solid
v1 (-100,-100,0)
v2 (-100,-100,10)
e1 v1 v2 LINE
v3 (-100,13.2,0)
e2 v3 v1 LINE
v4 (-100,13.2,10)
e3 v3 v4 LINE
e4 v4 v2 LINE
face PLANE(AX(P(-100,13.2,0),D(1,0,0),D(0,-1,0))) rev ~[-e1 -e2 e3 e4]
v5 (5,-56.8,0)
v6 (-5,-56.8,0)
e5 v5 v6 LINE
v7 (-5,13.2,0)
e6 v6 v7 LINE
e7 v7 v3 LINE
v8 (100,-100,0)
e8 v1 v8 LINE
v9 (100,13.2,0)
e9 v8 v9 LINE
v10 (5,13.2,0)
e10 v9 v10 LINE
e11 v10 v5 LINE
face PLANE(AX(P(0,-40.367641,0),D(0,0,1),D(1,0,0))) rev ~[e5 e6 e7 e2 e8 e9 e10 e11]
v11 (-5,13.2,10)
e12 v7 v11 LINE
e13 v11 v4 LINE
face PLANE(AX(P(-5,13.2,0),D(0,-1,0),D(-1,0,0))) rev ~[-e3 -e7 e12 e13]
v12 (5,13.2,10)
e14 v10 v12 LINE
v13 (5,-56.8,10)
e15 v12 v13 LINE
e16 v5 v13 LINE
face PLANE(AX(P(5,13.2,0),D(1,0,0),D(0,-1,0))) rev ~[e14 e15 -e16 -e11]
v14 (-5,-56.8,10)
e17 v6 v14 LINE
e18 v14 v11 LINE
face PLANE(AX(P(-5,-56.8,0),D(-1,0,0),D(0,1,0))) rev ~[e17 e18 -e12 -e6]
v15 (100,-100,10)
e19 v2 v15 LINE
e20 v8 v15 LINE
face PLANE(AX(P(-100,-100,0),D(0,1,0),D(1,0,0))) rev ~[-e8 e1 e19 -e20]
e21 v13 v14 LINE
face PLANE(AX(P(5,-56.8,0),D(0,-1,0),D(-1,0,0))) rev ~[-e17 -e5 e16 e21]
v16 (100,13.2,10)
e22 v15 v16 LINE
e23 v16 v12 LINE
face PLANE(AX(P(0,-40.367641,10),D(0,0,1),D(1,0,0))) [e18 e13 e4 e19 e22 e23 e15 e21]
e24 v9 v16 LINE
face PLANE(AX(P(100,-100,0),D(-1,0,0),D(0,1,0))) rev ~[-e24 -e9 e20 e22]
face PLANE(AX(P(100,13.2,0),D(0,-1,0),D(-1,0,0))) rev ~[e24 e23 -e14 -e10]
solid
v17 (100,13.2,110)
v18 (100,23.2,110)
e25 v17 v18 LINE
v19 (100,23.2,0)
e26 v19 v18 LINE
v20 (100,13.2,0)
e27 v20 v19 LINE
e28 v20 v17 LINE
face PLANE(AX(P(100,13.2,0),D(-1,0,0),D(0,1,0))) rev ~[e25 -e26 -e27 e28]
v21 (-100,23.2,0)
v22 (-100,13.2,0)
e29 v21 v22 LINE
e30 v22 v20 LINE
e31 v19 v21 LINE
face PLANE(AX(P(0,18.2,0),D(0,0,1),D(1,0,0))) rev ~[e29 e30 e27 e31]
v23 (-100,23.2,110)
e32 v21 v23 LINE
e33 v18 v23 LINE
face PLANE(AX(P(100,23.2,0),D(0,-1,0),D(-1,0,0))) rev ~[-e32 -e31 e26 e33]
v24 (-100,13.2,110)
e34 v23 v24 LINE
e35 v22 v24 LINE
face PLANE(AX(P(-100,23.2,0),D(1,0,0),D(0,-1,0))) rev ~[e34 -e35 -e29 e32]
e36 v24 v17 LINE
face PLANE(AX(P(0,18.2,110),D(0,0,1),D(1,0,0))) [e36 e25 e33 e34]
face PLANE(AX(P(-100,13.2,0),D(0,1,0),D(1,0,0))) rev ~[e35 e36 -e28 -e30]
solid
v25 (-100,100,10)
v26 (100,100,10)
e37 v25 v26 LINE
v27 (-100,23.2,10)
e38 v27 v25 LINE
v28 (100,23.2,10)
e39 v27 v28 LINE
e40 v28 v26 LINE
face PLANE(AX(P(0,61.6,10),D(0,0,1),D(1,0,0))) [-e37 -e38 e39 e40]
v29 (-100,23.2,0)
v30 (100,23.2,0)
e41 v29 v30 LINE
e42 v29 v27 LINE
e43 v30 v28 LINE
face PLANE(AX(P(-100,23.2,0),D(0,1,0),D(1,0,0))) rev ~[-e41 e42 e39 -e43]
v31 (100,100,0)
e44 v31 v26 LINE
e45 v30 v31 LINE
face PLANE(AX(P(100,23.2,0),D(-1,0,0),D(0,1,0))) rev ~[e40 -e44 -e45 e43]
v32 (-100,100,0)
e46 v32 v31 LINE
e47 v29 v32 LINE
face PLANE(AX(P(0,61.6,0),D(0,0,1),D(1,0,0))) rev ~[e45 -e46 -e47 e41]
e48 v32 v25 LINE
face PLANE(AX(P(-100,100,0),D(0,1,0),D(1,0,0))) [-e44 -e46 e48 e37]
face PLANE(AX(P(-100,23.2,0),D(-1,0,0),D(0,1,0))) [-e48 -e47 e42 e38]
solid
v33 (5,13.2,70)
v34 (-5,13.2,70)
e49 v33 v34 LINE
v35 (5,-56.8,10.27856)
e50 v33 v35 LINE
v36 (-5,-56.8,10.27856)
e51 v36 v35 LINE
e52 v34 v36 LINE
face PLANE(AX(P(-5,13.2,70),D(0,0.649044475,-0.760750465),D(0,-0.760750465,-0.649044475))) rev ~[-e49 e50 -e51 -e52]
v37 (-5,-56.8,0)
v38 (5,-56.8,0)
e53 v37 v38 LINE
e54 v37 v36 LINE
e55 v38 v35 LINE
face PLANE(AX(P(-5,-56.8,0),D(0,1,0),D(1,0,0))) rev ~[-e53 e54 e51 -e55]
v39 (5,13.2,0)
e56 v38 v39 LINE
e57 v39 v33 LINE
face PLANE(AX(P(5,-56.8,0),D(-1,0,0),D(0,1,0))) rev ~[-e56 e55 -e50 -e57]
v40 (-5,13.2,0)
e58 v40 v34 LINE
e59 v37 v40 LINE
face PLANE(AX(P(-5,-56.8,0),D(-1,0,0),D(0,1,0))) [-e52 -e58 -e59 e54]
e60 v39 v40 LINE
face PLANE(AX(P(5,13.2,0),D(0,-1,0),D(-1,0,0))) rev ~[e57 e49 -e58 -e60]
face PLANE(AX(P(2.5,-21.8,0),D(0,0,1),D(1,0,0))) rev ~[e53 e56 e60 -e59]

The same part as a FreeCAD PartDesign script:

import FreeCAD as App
import Part
import Sketcher
Q = App.Units.Quantity


def add_polygon(sketch, points):
    """Adds a closed chain of lines whose ends are joined by coincident constraints."""
    first, n = sketch.GeometryCount, len(points)
    for a, b in zip(points, points[1:] + points[:1]):
        sketch.addGeometry(Part.LineSegment(App.Vector(*a, 0), App.Vector(*b, 0)), False)
    for i in range(n):
        sketch.addConstraint(Sketcher.Constraint("Coincident", first + i, 2, first + (i + 1) % n, 1))

doc = App.newDocument("Part")
body = doc.addObject("PartDesign::Body", "Body")
body.AllowCompound = True

# Sketch on XY plane
sketch1 = doc.addObject("Sketcher::SketchObject", "Sketch")
body.addObject(sketch1)
sketch1.AttachmentSupport = (doc.XY_Plane, [""])
sketch1.MapMode = "FlatFace"
add_polygon(sketch1, [(-100, 100), (-100, 23), (100, 23), (100, 100)])  # lines 0-3
add_polygon(sketch1, [(-100, 13), (-100, -100), (100, -100), (100, 13), (5, 13), (5, -57), (-5, -57), (-5, 13)])  # lines 4-11
sketch1.addConstraint([
    Sketcher.Constraint("Vertical", 0),
    Sketcher.Constraint("Horizontal", 1),
    Sketcher.Constraint("Vertical", 2),
    Sketcher.Constraint("Horizontal", 3),
    Sketcher.Constraint("Vertical", 4),
    Sketcher.Constraint("Horizontal", 5),
    Sketcher.Constraint("Vertical", 6),
    Sketcher.Constraint("Horizontal", 7),
    Sketcher.Constraint("Vertical", 8),
    Sketcher.Constraint("Horizontal", 9),
    Sketcher.Constraint("Vertical", 10),
    Sketcher.Constraint("Horizontal", 11),
    Sketcher.Constraint("Symmetric", 2, 2, 4, 2, -1, 1),
    Sketcher.Constraint("Symmetric", 7, 2, 10, 2, -2),
    Sketcher.Constraint("Vertical", 3, 2, 4, 2),
    Sketcher.Constraint("Vertical", 2, 2, 5, 2),
    Sketcher.Constraint("DistanceX", 1, 1, 1, 2, Q("200 mm")),
    Sketcher.Constraint("DistanceX", 7, 2, 7, 1, Q("95 mm")),
    Sketcher.Constraint("DistanceY", 8, 2, 8, 1, Q("70 mm")),
    Sketcher.Constraint("DistanceY", 0, 2, 0, 1, Q("76.8 mm")),
    Sketcher.Constraint("DistanceY", 4, 2, 4, 1, Q("113.2 mm")),
    Sketcher.Constraint("DistanceY", -1, 1, 2, 2, Q("100 mm")),
])
pad1 = doc.addObject("PartDesign::Pad", "Pad")
body.addObject(pad1)
pad1.Profile = sketch1
pad1.Length = 10
body2 = doc.addObject("PartDesign::Body", "Body001")

# Sketch on XY plane
sketch2 = doc.addObject("Sketcher::SketchObject", "Sketch001")
body2.addObject(sketch2)
sketch2.AttachmentSupport = (doc.getObject("XY_Plane001"), [""])
sketch2.MapMode = "FlatFace"
add_polygon(sketch2, [(100, 23), (-100, 23), (-100, 13), (100, 13)])  # lines 0-3
sketch2.addConstraint([
    Sketcher.Constraint("Horizontal", 0),
    Sketcher.Constraint("Vertical", 1),
    Sketcher.Constraint("Horizontal", 2),
    Sketcher.Constraint("Vertical", 3),
    Sketcher.Constraint("DistanceX", 0, 2, 0, 1, Q("200 mm")),
    Sketcher.Constraint("DistanceY", 1, 2, 1, 1, Q("10 mm")),
    Sketcher.Constraint("DistanceX", 0, 2, -1, 1, Q("100 mm")),
    Sketcher.Constraint("DistanceY", -1, 1, 0, 2, Q("23.2 mm")),
])
pad2 = doc.addObject("PartDesign::Pad", "Pad001")
body2.addObject(pad2)
pad2.Profile = sketch2
pad2.Length = 110
body3 = doc.addObject("PartDesign::Body", "Body002")

# Sketch on XY plane
sketch3 = doc.addObject("Sketcher::SketchObject", "Sketch002")
body3.addObject(sketch3)
sketch3.AttachmentSupport = (doc.getObject("XY_Plane002"), [""])
sketch3.MapMode = "FlatFace"
add_polygon(sketch3, [(5, -57), (5, 13), (-5, 13), (-5, -57)])  # lines 0-3
sketch3.addConstraint([
    Sketcher.Constraint("Vertical", 0),
    Sketcher.Constraint("Horizontal", 1),
    Sketcher.Constraint("Vertical", 2),
    Sketcher.Constraint("Horizontal", 3),
    Sketcher.Constraint("DistanceX", 1, 2, 1, 1, Q("10 mm")),
    Sketcher.Constraint("DistanceY", 0, 1, 0, 2, Q("70 mm")),
    Sketcher.Constraint("DistanceX", -1, 1, 0, 2, Q("5 mm")),
    Sketcher.Constraint("DistanceY", -1, 1, 0, 2, Q("13.2 mm")),
])
pad3 = doc.addObject("PartDesign::Pad", "Pad002")
body3.addObject(pad3)
pad3.Profile = sketch3
pad3.Length = 70

# Sketch on YZ plane
sketch4 = doc.addObject("Sketcher::SketchObject", "Sketch003")
body3.addObject(sketch4)
sketch4.AttachmentSupport = (doc.getObject("YZ_Plane002"), [""])
sketch4.MapMode = "FlatFace"
sketch4.AttachmentOffset = App.Placement(App.Vector(0, 0, -5), App.Rotation())
add_polygon(sketch4, [(-57, 70), (13, 70), (-57, 10)])  # lines 0-2
sketch4.addConstraint([
    Sketcher.Constraint("Horizontal", 0),
    Sketcher.Constraint("Vertical", 2),
    Sketcher.Constraint("DistanceX", 0, 1, 0, 2, Q("70 mm")),
    Sketcher.Constraint("DistanceY", -1, 1, 0, 2, Q("70 mm")),
    Sketcher.Constraint("DistanceX", -1, 1, 0, 2, Q("13.2 mm")),
    Sketcher.Constraint("DistanceY", 2, 1, 2, 2, Q("59.72144 mm")),
])
pocket1 = doc.addObject("PartDesign::Pocket", "Pocket")
body3.addObject(pocket1)
pocket1.Profile = sketch4
pocket1.Length = 100
pocket1.Reversed = True

doc.recompute()
